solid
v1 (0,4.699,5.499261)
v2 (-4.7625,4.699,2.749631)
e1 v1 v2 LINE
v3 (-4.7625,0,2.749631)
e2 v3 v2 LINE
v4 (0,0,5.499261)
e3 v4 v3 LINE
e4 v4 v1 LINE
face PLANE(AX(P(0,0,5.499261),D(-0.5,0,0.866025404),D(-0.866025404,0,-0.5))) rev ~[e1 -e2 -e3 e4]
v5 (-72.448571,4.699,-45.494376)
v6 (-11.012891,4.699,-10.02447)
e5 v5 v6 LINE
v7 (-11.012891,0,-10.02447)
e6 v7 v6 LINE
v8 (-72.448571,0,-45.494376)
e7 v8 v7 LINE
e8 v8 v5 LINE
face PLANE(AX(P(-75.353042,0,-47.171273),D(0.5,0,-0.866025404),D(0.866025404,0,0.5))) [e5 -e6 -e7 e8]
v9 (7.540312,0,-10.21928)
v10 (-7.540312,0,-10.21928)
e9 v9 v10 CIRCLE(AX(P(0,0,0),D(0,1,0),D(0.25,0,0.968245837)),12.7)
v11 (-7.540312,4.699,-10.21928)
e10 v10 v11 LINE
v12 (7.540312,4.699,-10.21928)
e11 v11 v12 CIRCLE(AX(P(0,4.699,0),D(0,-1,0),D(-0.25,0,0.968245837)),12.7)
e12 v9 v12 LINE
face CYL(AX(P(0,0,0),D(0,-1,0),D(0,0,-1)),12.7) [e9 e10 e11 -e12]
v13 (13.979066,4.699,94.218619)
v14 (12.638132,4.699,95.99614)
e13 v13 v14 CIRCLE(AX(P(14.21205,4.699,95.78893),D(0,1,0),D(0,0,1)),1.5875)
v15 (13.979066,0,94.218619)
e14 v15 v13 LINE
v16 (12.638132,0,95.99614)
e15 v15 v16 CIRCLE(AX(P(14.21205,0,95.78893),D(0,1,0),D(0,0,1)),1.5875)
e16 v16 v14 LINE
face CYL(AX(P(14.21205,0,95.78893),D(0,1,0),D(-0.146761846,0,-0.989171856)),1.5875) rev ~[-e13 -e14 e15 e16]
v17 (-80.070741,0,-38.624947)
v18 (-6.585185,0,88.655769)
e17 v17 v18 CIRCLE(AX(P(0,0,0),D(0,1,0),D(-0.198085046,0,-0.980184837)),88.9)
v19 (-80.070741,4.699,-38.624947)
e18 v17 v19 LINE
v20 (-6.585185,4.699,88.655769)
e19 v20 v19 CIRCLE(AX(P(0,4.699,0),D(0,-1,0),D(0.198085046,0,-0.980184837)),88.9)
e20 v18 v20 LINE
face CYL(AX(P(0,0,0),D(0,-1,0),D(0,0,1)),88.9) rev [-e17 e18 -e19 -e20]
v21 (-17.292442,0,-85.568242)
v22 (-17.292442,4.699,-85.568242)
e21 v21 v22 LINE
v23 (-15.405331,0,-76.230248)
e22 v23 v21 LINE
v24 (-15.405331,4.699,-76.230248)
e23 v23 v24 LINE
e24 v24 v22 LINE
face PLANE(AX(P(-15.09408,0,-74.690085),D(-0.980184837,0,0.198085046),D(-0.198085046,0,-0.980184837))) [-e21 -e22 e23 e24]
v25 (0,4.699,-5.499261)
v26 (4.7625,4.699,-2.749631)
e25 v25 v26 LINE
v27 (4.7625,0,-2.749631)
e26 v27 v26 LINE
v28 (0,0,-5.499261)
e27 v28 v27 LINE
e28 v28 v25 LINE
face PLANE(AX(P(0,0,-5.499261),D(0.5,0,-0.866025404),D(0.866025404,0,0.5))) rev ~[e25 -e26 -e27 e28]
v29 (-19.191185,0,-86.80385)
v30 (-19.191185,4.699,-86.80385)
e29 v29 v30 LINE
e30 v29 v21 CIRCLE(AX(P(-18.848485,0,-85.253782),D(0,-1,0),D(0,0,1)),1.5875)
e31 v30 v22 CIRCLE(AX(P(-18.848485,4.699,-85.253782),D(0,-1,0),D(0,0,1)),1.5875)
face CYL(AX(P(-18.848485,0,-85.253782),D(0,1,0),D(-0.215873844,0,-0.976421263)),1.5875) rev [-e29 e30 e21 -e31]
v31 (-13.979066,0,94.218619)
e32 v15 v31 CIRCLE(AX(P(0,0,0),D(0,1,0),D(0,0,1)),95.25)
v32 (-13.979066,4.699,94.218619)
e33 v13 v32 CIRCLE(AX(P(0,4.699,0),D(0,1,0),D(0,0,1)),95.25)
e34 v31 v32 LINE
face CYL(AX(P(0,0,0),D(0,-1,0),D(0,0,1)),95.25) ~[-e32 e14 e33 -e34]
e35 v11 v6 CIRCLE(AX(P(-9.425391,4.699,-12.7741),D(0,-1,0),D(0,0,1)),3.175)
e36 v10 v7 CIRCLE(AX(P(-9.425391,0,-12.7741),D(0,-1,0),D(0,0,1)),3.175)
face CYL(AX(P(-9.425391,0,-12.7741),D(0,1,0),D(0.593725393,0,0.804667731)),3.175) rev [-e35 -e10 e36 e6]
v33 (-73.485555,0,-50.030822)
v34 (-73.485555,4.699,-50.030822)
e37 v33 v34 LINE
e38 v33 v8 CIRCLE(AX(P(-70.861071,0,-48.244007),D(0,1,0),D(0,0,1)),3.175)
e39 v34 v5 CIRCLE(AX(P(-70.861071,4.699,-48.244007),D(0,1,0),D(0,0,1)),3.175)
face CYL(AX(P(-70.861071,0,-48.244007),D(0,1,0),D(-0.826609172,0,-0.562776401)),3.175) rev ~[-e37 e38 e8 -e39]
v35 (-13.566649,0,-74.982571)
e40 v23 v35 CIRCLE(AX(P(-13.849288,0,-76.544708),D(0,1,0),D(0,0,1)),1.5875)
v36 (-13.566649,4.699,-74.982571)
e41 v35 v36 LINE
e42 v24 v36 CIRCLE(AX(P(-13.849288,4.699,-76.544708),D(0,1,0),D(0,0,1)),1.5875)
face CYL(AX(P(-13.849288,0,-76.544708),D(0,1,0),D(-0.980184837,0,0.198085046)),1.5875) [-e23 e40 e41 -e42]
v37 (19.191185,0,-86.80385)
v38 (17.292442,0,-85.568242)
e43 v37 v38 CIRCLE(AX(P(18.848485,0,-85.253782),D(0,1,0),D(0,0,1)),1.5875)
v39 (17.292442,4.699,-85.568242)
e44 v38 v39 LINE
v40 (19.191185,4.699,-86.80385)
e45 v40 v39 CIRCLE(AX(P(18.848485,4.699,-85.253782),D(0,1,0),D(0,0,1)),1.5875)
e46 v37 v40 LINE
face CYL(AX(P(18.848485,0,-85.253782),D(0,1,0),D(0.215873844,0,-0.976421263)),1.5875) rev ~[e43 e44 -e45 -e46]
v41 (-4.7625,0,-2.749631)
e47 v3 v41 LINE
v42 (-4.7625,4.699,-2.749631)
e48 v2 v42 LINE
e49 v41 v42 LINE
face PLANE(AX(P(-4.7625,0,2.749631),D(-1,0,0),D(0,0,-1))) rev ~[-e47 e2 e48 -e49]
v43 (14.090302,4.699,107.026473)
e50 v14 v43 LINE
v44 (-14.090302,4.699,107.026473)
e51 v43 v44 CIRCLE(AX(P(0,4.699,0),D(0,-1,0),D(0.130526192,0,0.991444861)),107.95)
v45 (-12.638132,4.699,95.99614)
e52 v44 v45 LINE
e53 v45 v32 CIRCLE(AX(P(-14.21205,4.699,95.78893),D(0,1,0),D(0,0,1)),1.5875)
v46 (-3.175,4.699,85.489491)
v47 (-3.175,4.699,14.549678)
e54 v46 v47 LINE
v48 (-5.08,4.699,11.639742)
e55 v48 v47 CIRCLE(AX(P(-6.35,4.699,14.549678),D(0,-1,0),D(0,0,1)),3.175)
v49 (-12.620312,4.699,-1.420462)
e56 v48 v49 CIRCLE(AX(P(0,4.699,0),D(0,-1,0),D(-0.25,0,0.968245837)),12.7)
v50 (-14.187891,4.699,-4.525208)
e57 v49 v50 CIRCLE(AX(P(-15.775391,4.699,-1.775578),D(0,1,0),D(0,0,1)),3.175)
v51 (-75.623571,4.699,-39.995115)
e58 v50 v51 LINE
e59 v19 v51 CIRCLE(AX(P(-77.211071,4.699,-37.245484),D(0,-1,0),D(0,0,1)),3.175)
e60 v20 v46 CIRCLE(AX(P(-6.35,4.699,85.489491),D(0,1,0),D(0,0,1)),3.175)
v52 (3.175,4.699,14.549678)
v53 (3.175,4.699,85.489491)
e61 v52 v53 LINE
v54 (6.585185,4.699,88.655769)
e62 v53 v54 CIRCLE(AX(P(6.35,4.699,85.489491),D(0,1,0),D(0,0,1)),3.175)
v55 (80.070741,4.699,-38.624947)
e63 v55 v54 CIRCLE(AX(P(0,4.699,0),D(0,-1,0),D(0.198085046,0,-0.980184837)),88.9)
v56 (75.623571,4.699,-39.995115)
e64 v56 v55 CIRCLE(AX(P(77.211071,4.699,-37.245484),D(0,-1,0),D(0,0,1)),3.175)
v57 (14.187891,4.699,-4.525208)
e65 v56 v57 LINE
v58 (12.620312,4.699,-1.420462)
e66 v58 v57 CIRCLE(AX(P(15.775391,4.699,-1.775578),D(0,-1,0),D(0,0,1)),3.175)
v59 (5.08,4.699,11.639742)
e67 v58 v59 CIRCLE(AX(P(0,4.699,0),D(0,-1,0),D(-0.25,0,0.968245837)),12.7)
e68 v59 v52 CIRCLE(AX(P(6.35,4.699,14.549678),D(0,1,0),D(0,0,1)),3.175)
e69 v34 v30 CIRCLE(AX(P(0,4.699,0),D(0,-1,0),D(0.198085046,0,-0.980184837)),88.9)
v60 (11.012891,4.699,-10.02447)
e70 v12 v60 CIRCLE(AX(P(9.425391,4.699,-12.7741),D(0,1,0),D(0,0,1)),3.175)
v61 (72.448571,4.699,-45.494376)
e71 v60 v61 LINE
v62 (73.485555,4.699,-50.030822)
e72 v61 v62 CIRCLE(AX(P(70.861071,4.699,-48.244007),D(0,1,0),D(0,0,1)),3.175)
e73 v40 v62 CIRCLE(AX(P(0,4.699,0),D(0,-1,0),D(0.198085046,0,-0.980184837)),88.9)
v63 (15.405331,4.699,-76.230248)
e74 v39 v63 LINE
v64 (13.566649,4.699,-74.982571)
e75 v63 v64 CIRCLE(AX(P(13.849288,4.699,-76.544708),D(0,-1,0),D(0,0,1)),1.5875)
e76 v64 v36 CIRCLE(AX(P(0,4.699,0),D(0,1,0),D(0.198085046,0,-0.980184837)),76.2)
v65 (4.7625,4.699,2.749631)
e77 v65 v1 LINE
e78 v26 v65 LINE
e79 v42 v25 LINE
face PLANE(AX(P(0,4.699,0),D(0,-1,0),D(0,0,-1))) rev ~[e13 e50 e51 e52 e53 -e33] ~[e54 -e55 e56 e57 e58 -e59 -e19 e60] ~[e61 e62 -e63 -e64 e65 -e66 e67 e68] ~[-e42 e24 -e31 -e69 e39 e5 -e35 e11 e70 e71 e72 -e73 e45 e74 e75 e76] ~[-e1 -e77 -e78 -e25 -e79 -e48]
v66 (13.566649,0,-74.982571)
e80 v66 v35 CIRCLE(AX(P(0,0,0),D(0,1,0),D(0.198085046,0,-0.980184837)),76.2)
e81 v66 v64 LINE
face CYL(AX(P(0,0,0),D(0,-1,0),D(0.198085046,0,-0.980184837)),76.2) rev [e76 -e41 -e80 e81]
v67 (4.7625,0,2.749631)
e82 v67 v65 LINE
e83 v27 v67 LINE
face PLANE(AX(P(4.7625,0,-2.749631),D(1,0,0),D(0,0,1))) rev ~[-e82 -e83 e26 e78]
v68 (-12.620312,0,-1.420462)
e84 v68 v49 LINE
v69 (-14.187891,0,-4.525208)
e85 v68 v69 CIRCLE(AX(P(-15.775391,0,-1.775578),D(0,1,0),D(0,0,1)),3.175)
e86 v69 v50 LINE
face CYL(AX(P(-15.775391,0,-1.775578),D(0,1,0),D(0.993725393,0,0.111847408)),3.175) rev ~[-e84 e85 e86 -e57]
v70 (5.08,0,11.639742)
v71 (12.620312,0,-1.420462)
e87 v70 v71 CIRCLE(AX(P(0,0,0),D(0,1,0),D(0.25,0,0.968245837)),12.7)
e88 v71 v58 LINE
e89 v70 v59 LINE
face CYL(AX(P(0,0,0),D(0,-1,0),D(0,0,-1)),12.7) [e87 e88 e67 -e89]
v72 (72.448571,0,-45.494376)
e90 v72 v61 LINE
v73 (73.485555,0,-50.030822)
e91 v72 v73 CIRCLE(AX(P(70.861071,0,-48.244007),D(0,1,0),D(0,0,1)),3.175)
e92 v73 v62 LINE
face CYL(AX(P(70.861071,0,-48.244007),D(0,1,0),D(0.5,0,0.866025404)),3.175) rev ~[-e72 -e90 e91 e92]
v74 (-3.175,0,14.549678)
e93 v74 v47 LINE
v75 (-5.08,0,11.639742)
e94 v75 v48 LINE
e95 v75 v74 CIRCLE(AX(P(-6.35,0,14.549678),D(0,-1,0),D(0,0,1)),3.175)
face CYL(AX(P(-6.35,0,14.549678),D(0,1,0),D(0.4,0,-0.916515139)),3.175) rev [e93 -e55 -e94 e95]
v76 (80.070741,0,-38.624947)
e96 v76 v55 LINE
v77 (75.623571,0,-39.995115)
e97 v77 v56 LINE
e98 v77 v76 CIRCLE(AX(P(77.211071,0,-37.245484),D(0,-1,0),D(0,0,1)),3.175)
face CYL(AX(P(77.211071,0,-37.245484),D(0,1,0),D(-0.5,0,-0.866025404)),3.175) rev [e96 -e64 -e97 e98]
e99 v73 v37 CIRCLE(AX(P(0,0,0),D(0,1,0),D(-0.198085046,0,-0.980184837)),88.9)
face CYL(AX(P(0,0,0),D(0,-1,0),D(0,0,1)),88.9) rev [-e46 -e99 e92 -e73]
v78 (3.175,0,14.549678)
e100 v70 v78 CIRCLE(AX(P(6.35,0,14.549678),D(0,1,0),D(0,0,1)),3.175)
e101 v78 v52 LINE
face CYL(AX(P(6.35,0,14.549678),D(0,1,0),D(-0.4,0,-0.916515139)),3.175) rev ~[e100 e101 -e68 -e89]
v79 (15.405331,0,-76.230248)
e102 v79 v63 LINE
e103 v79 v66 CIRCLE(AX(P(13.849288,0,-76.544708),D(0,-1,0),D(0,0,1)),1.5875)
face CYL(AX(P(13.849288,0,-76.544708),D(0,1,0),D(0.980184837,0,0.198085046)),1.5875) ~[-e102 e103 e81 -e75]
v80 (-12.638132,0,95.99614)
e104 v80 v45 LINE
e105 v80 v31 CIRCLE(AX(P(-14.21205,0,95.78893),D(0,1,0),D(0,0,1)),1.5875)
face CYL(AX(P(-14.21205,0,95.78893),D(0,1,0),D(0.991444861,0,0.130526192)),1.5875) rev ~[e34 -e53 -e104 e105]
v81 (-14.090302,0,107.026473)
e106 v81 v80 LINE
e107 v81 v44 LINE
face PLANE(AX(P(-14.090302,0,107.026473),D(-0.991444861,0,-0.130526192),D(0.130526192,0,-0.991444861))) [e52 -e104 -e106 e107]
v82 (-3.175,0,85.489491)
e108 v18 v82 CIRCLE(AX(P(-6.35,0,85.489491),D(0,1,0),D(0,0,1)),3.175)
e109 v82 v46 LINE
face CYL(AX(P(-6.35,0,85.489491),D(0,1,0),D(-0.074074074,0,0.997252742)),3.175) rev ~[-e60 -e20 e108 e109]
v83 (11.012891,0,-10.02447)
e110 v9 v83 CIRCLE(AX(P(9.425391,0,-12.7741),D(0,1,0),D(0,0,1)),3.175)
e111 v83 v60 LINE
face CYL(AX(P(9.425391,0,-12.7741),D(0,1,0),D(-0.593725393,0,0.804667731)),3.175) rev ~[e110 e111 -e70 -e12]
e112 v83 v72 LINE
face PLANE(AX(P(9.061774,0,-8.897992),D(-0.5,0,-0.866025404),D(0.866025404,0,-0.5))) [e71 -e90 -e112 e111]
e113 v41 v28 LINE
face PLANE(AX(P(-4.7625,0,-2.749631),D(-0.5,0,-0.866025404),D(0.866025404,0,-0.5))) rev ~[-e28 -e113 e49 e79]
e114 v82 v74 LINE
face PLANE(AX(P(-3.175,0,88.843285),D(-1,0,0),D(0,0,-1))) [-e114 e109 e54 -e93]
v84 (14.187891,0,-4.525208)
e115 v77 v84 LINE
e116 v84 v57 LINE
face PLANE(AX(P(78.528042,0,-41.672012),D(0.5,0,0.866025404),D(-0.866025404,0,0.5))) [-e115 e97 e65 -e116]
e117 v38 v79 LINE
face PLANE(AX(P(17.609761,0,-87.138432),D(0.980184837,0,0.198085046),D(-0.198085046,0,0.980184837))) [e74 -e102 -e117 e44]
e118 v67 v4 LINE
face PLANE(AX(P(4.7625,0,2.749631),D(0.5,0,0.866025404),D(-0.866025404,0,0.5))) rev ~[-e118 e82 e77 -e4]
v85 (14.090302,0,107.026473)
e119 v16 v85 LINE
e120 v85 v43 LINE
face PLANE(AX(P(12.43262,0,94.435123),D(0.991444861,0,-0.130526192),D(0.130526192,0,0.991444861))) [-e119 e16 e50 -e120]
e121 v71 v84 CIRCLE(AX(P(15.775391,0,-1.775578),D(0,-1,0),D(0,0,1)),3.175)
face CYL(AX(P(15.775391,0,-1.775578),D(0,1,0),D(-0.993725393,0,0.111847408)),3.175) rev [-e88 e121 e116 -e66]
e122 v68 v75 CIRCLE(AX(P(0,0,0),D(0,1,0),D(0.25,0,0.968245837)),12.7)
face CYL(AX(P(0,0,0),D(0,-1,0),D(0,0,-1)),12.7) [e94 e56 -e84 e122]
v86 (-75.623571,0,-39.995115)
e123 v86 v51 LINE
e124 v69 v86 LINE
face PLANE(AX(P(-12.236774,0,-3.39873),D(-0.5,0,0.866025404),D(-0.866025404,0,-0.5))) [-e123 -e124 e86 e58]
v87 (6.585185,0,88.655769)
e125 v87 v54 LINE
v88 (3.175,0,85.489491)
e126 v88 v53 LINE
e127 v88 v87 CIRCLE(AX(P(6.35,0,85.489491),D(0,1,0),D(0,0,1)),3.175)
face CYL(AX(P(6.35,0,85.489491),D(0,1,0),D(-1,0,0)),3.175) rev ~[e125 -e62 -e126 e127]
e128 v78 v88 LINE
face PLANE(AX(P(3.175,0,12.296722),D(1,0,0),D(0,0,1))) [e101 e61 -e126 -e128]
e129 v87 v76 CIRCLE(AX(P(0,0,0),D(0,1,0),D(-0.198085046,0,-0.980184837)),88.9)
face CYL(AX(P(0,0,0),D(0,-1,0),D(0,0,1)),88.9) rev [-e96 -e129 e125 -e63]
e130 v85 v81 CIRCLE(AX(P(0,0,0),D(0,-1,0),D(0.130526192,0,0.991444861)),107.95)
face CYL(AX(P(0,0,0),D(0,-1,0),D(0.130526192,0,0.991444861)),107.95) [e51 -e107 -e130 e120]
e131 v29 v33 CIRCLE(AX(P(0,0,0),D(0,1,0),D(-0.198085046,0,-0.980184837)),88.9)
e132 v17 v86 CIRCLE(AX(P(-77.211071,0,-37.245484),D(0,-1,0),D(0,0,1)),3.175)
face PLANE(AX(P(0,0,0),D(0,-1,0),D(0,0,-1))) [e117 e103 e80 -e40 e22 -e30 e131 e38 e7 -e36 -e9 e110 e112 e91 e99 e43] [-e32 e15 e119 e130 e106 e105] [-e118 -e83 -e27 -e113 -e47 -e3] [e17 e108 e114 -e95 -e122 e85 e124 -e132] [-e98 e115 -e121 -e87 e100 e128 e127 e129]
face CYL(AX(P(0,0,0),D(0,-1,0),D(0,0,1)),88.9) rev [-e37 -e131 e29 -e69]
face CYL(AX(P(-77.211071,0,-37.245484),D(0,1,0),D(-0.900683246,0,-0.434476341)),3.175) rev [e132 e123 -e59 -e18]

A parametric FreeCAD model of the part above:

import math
import FreeCAD as App
import Part
import Sketcher
from FreeCAD import Vector
Q = App.Units.Quantity


def edges_at(feature, points):
    """Names of the edges that pass closest to the given points."""
    edges = feature.Shape.Edges
    near = lambda p: min(range(len(edges)), key=lambda i: edges[i].distToShape(Part.Vertex(*p))[0])
    return sorted({f"Edge{near(p) + 1}" for p in points})

doc = App.newDocument("Part")
body = doc.addObject("PartDesign::Body", "Body")

# Sketch on XZ plane
sketch1 = body.newObject("Sketcher::SketchObject", "Sketch")
sketch1.AttachmentSupport = (doc.getObject("XZ_Plane"), [""])
sketch1.MapMode = "FlatFace"
sketch1.addGeometry(Part.Circle(Vector(0, 0, 0), Vector(0, 0, 1), 95.25), False)
sketch1.addGeometry(Part.Circle(Vector(0, 0, 0), Vector(0, 0, 1), 88.9), False)
sketch1.addConstraint(Sketcher.Constraint("Coincident", 0, 3, -1, 1))
sketch1.addConstraint(Sketcher.Constraint("Coincident", 1, 3, -1, 1))
sketch1.addConstraint(Sketcher.Constraint("Diameter", 1, Q("7 in")))
sketch1.addConstraint(Sketcher.Constraint("Diameter", 0, Q("7.5 in")))
pad1 = body.newObject("PartDesign::Pad", "Pad")
pad1.Profile = sketch1
pad1.Length = Q("0.185 in")
pad1.Reversed = True

# Sketch on XZ plane
sketch2 = body.newObject("Sketcher::SketchObject", "Sketch001")
sketch2.AttachmentSupport = (doc.getObject("XZ_Plane"), [""])
sketch2.MapMode = "FlatFace"
sketch2.addGeometry(Part.ArcOfCircle(Part.Circle(Vector(0, 0, 0), Vector(0, 0, 1), 107.95), math.radians(82.5), math.radians(97.5)), False)
sketch2.addGeometry(Part.LineSegment(Vector(-14.090302, 107.026473, 0), Vector(-12.43262, 94.435123, 0)), False)
sketch2.addGeometry(Part.ArcOfCircle(Part.Circle(Vector(0, 0, 0), Vector(0, 0, 1), 95.25), math.radians(82.5), math.radians(97.5)), False)
sketch2.addGeometry(Part.LineSegment(Vector(12.43262, 94.435123, 0), Vector(14.090302, 107.026473, 0)), False)
sketch2.addGeometry(Part.LineSegment(Vector(-15.09408, -74.690085, 0), Vector(-17.609761, -87.138432, 0)), False)
sketch2.addGeometry(Part.ArcOfCircle(Part.Circle(Vector(0, 0, 0), Vector(0, 0, 1), 88.9), math.radians(-101.425), math.radians(-78.575)), False)
sketch2.addGeometry(Part.LineSegment(Vector(17.609761, -87.138432, 0), Vector(15.09408, -74.690085, 0)), False)
sketch2.addGeometry(Part.ArcOfCircle(Part.Circle(Vector(0, 0, 0), Vector(0, 0, 1), 76.2), math.radians(-101.425), math.radians(-78.575)), False)
sketch2.addConstraint(Sketcher.Constraint("Coincident", 0, 2, 1, 1))
sketch2.addConstraint(Sketcher.Constraint("Coincident", 1, 2, 2, 2))
sketch2.addConstraint(Sketcher.Constraint("Coincident", 2, 1, 3, 1))
sketch2.addConstraint(Sketcher.Constraint("Coincident", 3, 2, 0, 1))
sketch2.addConstraint(Sketcher.Constraint("Coincident", 4, 2, 5, 1))
sketch2.addConstraint(Sketcher.Constraint("Coincident", 5, 2, 6, 1))
sketch2.addConstraint(Sketcher.Constraint("Coincident", 6, 2, 7, 2))
sketch2.addConstraint(Sketcher.Constraint("Coincident", 7, 1, 4, 1))
sketch2.addConstraint(Sketcher.Constraint("Coincident", 0, 3, -1, 1))
sketch2.addConstraint(Sketcher.Constraint("Coincident", 2, 3, -1, 1))
sketch2.addConstraint(Sketcher.Constraint("Coincident", 5, 3, -1, 1))
sketch2.addConstraint(Sketcher.Constraint("Coincident", 7, 3, -1, 1))
sketch2.addConstraint(Sketcher.Constraint("Horizontal", 1, 2, 2, 1))
sketch2.addConstraint(Sketcher.Constraint("Horizontal", 0, 2, 3, 2))
sketch2.addConstraint(Sketcher.Constraint("Horizontal", 4, 2, 5, 2))
sketch2.addConstraint(Sketcher.Constraint("Horizontal", 6, 2, 7, 1))
sketch2.addConstraint(Sketcher.Constraint("Equal", 3, 4))
sketch2.addConstraint(Sketcher.Constraint("Radius", 7, Q("3 in")))
sketch2.addConstraint(Sketcher.Constraint("Radius", 5, Q("3.5 in")))
sketch2.addConstraint(Sketcher.Constraint("Radius", 0, Q("4.25 in")))
sketch2.addConstraint(Sketcher.Constraint("Angle", 1, Q("-82.5 deg")))
sketch2.addConstraint(Sketcher.Constraint("DistanceX", 1, 2, -1, 1, 12.43262))
sketch2.addConstraint(Sketcher.Constraint("DistanceX", 4, 2, -1, 1, 17.609761))
sketch2.addConstraint(Sketcher.Constraint("DistanceX", -1, 1, 6, 2, 15.09408))
pad2 = body.newObject("PartDesign::Pad", "Pad001")
pad2.Profile = sketch2
pad2.Length = Q("0.185 in")
pad2.Reversed = True
body2 = doc.addObject("PartDesign::Body", "Body001")

# Sketch on XZ plane
sketch3 = body2.newObject("Sketcher::SketchObject", "Sketch002")
sketch3.AttachmentSupport = (doc.getObject("XZ_Plane001"), [""])
sketch3.MapMode = "FlatFace"
sketch3.addGeometry(Part.Circle(Vector(0, 0, 0), Vector(0, 0, 1), 12.7), False)
sketch3.addGeometry(Part.LineSegment(Vector(-4.7625, 2.749631, 0), Vector(0, 5.499261, 0)), False)
sketch3.addGeometry(Part.LineSegment(Vector(0, 5.499261, 0), Vector(4.7625, 2.749631, 0)), False)
sketch3.addGeometry(Part.LineSegment(Vector(4.7625, 2.749631, 0), Vector(4.7625, -2.749631, 0)), False)
sketch3.addGeometry(Part.LineSegment(Vector(4.7625, -2.749631, 0), Vector(0, -5.499261, 0)), False)
sketch3.addGeometry(Part.LineSegment(Vector(0, -5.499261, 0), Vector(-4.7625, -2.749631, 0)), False)
sketch3.addGeometry(Part.LineSegment(Vector(-4.7625, -2.749631, 0), Vector(-4.7625, 2.749631, 0)), False)
sketch3.addConstraint(Sketcher.Constraint("Coincident", 1, 2, 2, 1))
sketch3.addConstraint(Sketcher.Constraint("Coincident", 2, 2, 3, 1))
sketch3.addConstraint(Sketcher.Constraint("Coincident", 3, 2, 4, 1))
sketch3.addConstraint(Sketcher.Constraint("Coincident", 4, 2, 5, 1))
sketch3.addConstraint(Sketcher.Constraint("Coincident", 5, 2, 6, 1))
sketch3.addConstraint(Sketcher.Constraint("Coincident", 6, 2, 1, 1))
sketch3.addConstraint(Sketcher.Constraint("Vertical", 3))
sketch3.addConstraint(Sketcher.Constraint("Vertical", 6))
sketch3.addConstraint(Sketcher.Constraint("Coincident", 0, 3, -1, 1))
sketch3.addConstraint(Sketcher.Constraint("Symmetric", 1, 2, 4, 2, -1, 1))
sketch3.addConstraint(Sketcher.Constraint("Symmetric", 2, 2, 5, 2, -1, 1))
sketch3.addConstraint(Sketcher.Constraint("PointOnObject", 1, 2, -2))
sketch3.addConstraint(Sketcher.Constraint("Parallel", 1, 4))
sketch3.addConstraint(Sketcher.Constraint("Horizontal", 3, 2, 5, 2))
sketch3.addConstraint(Sketcher.Constraint("Diameter", 0, Q("1 in")))
sketch3.addConstraint(Sketcher.Constraint("Angle", 1, Q("30 deg")))
sketch3.addConstraint(Sketcher.Constraint("DistanceX", -1, 1, 2, 2, Q("0.1875 in")))
sketch3.addConstraint(Sketcher.Constraint("DistanceY", 3, 2, 3, 1, 5.499261))
pad3 = body2.newObject("PartDesign::Pad", "Pad002")
pad3.Profile = sketch3
pad3.Length = Q("0.185 in")
pad3.Reversed = True
body.AllowCompound = True
doc.recompute()

boolean = body.newObject("PartDesign::Boolean", "Boolean")
boolean.Type = "Fuse"
boolean.addObjects([body2])

# Sketch on XZ plane
sketch4 = body.newObject("Sketcher::SketchObject", "Sketch003")
sketch4.AttachmentSupport = (doc.getObject("XZ_Plane"), [""])
sketch4.MapMode = "FlatFace"
sketch4.addGeometry(Part.LineSegment(Vector(-3.175, 88.843285, 0), Vector(-3.175, 12.296722, 0)), False)
sketch4.addGeometry(Part.ArcOfCircle(Part.Circle(Vector(0, 0, 0), Vector(0, 0, 1), 12.7), math.radians(75.522488), math.radians(104.477512)), False)
sketch4.addGeometry(Part.LineSegment(Vector(3.175, 12.296722, 0), Vector(3.175, 88.843285, 0)), False)
sketch4.addGeometry(Part.ArcOfCircle(Part.Circle(Vector(0, -0.000001, 0), Vector(0, 0, 1), 88.900001), math.radians(87.953287), math.radians(92.046713)), False)
sketch4.addConstraint(Sketcher.Constraint("Coincident", 0, 2, 1, 2))
sketch4.addConstraint(Sketcher.Constraint("Coincident", 1, 1, 2, 1))
sketch4.addConstraint(Sketcher.Constraint("Coincident", 2, 2, 3, 1))
sketch4.addConstraint(Sketcher.Constraint("Coincident", 3, 2, 0, 1))
sketch4.addConstraint(Sketcher.Constraint("Vertical", 0))
sketch4.addConstraint(Sketcher.Constraint("Vertical", 2))
sketch4.addConstraint(Sketcher.Constraint("Coincident", 1, 3, -1, 1))
sketch4.addConstraint(Sketcher.Constraint("Coincident", 3, 3, -1, 1))
sketch4.addConstraint(Sketcher.Constraint("Horizontal", 0, 2, 1, 1))
sketch4.addConstraint(Sketcher.Constraint("Radius", 1, Q("0.5 in")))
sketch4.addConstraint(Sketcher.Constraint("Radius", 3, Q("3.5 in")))
sketch4.addConstraint(Sketcher.Constraint("DistanceX", 0, 2, 1, 1, Q("0.25 in")))
pad4 = body.newObject("PartDesign::Pad", "Pad003")
pad4.Profile = sketch4
pad4.Length = Q("0.185 in")
pad4.Reversed = True
doc.recompute()

fillet = body.newObject("PartDesign::Fillet", "Fillet")
fillet.Base = (pad4, edges_at(pad4, [
    (-3.175, 2.349, 12.297),
    (3.175, 2.349, 12.297),
    (3.175, 2.349, 88.843),
    (-3.175, 2.349, 88.843),
]))
fillet.Radius = Q("0.125 in")
doc.recompute()

polarpattern = body.newObject("PartDesign::PolarPattern", "PolarPattern")
polarpattern.Originals = [pad4]
polarpattern.Axis = (doc.getObject("Y_Axis"), [""])
polarpattern.Angle = 360
polarpattern.Occurrences = 3
body.Tip = polarpattern
doc.recompute()

fillet2 = body.newObject("PartDesign::Fillet", "Fillet001")
fillet2.Base = (polarpattern, edges_at(polarpattern, [
    (12.237, 2.349, -3.399),
    (9.062, 2.349, -8.898),
    (75.353, 2.349, -47.171),
    (78.528, 2.349, -41.672),
    (-9.062, 2.349, -8.898),
    (-12.237, 2.349, -3.399),
    (-78.528, 2.349, -41.672),
    (-75.353, 2.349, -47.171),
]))
fillet2.Radius = Q("0.125 in")
doc.recompute()

fillet3 = body.newObject("PartDesign::Fillet", "Fillet002")
fillet3.Base = (fillet2, edges_at(fillet2, [
    (-15.094, 2.349, -74.69),
    (15.094, 2.349, -74.69),
    (17.61, 2.349, -87.138),
    (-17.61, 2.349, -87.138),
    (-12.433, 2.349, 94.435),
    (12.433, 2.349, 94.435),
]))
fillet3.Radius = Q("0.0625 in")

doc.recompute()
